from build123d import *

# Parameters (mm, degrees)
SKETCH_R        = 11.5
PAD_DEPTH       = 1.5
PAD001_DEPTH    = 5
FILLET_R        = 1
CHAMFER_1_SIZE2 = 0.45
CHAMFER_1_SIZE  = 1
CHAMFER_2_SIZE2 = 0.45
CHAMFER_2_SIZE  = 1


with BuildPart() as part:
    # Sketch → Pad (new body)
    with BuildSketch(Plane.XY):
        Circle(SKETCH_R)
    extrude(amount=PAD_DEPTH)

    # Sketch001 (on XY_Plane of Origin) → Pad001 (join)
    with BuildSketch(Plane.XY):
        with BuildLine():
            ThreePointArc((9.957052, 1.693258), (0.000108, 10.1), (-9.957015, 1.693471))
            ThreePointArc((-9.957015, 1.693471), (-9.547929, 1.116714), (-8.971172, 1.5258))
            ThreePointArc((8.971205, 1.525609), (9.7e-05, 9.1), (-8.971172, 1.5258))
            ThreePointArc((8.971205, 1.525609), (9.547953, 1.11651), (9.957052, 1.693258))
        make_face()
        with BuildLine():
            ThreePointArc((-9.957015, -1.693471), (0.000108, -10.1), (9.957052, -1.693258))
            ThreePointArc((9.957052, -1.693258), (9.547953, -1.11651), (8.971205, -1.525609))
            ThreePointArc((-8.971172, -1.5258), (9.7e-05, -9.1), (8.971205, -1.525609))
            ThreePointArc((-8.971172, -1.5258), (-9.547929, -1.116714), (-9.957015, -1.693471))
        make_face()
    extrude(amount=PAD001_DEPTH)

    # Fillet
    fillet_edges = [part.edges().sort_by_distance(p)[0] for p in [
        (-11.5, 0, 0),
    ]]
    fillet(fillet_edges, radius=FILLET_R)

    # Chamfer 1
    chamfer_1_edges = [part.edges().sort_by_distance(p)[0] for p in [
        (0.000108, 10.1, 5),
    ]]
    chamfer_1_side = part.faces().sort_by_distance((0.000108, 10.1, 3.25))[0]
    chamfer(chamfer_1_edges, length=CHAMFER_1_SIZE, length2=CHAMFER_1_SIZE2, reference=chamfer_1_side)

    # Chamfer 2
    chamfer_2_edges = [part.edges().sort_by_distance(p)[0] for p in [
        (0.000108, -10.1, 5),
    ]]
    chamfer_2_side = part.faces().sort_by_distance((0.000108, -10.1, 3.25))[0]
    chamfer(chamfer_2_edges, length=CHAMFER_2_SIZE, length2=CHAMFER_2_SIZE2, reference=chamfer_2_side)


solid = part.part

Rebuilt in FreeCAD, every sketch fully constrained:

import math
import FreeCAD as App
import Part
import Sketcher
from FreeCAD import Vector
Q = App.Units.Quantity


def edges_at(feature, points):
    """Names of the edges that pass closest to the given points."""
    edges = feature.Shape.Edges
    near = lambda p: min(range(len(edges)), key=lambda i: edges[i].distToShape(Part.Vertex(*p))[0])
    return sorted({f"Edge{near(p) + 1}" for p in points})

doc = App.newDocument("Part")
body = doc.addObject("PartDesign::Body", "Body")

sketch1 = body.newObject("Sketcher::SketchObject", "Sketch")
sketch1.AttachmentSupport = (doc.getObject("XY_Plane"), [""])
sketch1.MapMode = "FlatFace"
sketch1.addGeometry(Part.Circle(Vector(0, 0, 0), Vector(0, 0, 1), 12), False)
sketch1.addConstraint([
    Sketcher.Constraint("Coincident", 0, 3, -1, 1),
    Sketcher.Constraint("Diameter", 0, Q("23 mm")),
])
pad1 = body.newObject("PartDesign::Pad", "Pad")
pad1.Profile = sketch1
pad1.Length = 1.5

sketch2 = body.newObject("Sketcher::SketchObject", "Sketch001")
sketch2.AttachmentSupport = (doc.getObject("XY_Plane"), [""])
sketch2.MapMode = "FlatFace"
sketch2.addGeometry([
    Part.ArcOfCircle(Part.Circle(Vector(0, 0, 0), Vector(0, 0, 1), 10.1), math.radians(10), math.radians(170)),
    Part.ArcOfCircle(Part.Circle(Vector(-9.46, 1.61, 0), Vector(0, 0, 1), 0.5), math.radians(170), math.radians(350)),
    Part.ArcOfCircle(Part.Circle(Vector(0, 0, 0), Vector(0, 0, 1), 9.1), math.radians(10), math.radians(170)),
    Part.ArcOfCircle(Part.Circle(Vector(9.46, 1.61, 0), Vector(0, 0, 1), 0.5), math.radians(-170), math.radians(10)),
    Part.ArcOfCircle(Part.Circle(Vector(0, 0, 0), Vector(0, 0, 1), 10.1), math.radians(-170), math.radians(-10)),
    Part.ArcOfCircle(Part.Circle(Vector(9.46, -1.61, 0), Vector(0, 0, 1), 0.5), math.radians(-10), math.radians(170)),
    Part.ArcOfCircle(Part.Circle(Vector(0, 0, 0), Vector(0, 0, 1), 9.1), math.radians(-170), math.radians(-10)),
    Part.ArcOfCircle(Part.Circle(Vector(-9.46, -1.61, 0), Vector(0, 0, 1), 0.5), math.radians(10), math.radians(190)),
], False)
sketch2.addConstraint([
    Sketcher.Constraint("Tangent", 0, 2, 1, 1),
    Sketcher.Constraint("Tangent", 1, 2, 2, 2),
    Sketcher.Constraint("Tangent", 2, 1, 3, 1),
    Sketcher.Constraint("Tangent", 3, 2, 0, 1),
    Sketcher.Constraint("Tangent", 4, 2, 5, 1),
    Sketcher.Constraint("Tangent", 5, 2, 6, 2),
    Sketcher.Constraint("Tangent", 6, 1, 7, 1),
    Sketcher.Constraint("Tangent", 7, 2, 4, 1),
    Sketcher.Constraint("Coincident", 0, 3, -1, 1),
    Sketcher.Constraint("Coincident", 2, 3, -1, 1),
    Sketcher.Constraint("Coincident", 4, 3, -1, 1),
    Sketcher.Constraint("Coincident", 6, 3, -1, 1),
    Sketcher.Constraint("Equal", 0, 4),
    Sketcher.Constraint("Equal", 3, 5),
    Sketcher.Constraint("Vertical", 3, 3, 5, 3),
    Sketcher.Constraint("Vertical", 1, 3, 7, 3),
    Sketcher.Constraint("Radius", 0, Q("10.1 mm")),
    Sketcher.Constraint("Radius", 1, Q("0.5 mm")),
    Sketcher.Constraint("DistanceY", -1, 1, 1, 2, Q("1.5258 mm")),
    Sketcher.Constraint("DistanceX", -1, 1, 3, 3, Q("9.464128 mm")),
])
pad2 = body.newObject("PartDesign::Pad", "Pad001")
pad2.Profile = sketch2
pad2.Length = 5
doc.recompute()

fillet = body.newObject("PartDesign::Fillet", "Fillet")
fillet.Base = (pad2, edges_at(pad2, [(-11.5, 0, 0)]))
fillet.Radius = 1
doc.recompute()

chamfer = body.newObject("PartDesign::Chamfer", "Chamfer")
chamfer.Base = (fillet, edges_at(fillet, [(0, 10.1, 5)]))
chamfer.ChamferType = "Two distances"
chamfer.Size = 1
chamfer.Size2 = 0.45
doc.recompute()

chamfer2 = body.newObject("PartDesign::Chamfer", "Chamfer001")
chamfer2.Base = (chamfer, edges_at(chamfer, [(0, -10.1, 5)]))
chamfer2.ChamferType = "Two distances"
chamfer2.Size = 1
chamfer2.Size2 = 0.45

doc.recompute()
